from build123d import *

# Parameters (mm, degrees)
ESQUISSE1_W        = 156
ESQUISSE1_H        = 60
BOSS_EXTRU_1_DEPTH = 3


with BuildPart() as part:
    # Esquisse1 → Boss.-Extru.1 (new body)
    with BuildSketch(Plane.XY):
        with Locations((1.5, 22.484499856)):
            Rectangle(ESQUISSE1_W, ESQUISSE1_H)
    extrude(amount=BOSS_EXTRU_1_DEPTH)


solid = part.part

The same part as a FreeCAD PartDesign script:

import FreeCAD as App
import Part
import Sketcher

doc = App.newDocument("Part")
params = doc.addObject("Spreadsheet::Sheet", "Params")
for row, (alias, value) in enumerate([
    ("sketch1_width", "156 mm"),
    ("sketch1_height", "60 mm"),
    ("pad1_length", "3 mm"),
], start=1):
    params.set(f"A{row}", alias)
    params.set(f"B{row}", "=" + value)
    params.setAlias(f"B{row}", alias)

body = doc.addObject("PartDesign::Body", "Body")

# Sketch on XY plane
sketch1 = body.newObject("Sketcher::SketchObject", "Sketch")
sketch1.AttachmentSupport = (doc.getObject("XY_Plane"), [""])
sketch1.MapMode = "FlatFace"
sketch1.addGeometry([
    Part.LineSegment(App.Vector(-76.5, 52.4845, 0), App.Vector(-76.5, -7.5155, 0)),
    Part.LineSegment(App.Vector(-76.5, -7.5155, 0), App.Vector(79.5, -7.5155, 0)),
    Part.LineSegment(App.Vector(79.5, -7.5155, 0), App.Vector(79.5, 52.4845, 0)),
    Part.LineSegment(App.Vector(79.5, 52.4845, 0), App.Vector(-76.5, 52.4845, 0)),
], False)
sketch1.addConstraint([
    Sketcher.Constraint("Coincident", 0, 2, 1, 1),
    Sketcher.Constraint("Coincident", 1, 2, 2, 1),
    Sketcher.Constraint("Coincident", 2, 2, 3, 1),
    Sketcher.Constraint("Coincident", 3, 2, 0, 1),
    Sketcher.Constraint("Vertical", 0),
    Sketcher.Constraint("Horizontal", 1),
    Sketcher.Constraint("Vertical", 2),
    Sketcher.Constraint("Horizontal", 3),
    Sketcher.Constraint("DistanceX", 1, 1, 1, 2, 156.0),
    Sketcher.Constraint("DistanceY", 0, 2, 0, 1, 60.0),
    Sketcher.Constraint("DistanceX", 0, 2, -1, 1, 76.5),
    Sketcher.Constraint("DistanceY", 0, 2, -1, 1, 7.5155),
])
sketch1.setExpression("Constraints[8]", "Params.sketch1_width")
sketch1.setExpression("Constraints[9]", "Params.sketch1_height")
pad1 = body.newObject("PartDesign::Pad", "Pad")
pad1.Profile = sketch1
pad1.setExpression("Length", "Params.pad1_length")

doc.recompute()
